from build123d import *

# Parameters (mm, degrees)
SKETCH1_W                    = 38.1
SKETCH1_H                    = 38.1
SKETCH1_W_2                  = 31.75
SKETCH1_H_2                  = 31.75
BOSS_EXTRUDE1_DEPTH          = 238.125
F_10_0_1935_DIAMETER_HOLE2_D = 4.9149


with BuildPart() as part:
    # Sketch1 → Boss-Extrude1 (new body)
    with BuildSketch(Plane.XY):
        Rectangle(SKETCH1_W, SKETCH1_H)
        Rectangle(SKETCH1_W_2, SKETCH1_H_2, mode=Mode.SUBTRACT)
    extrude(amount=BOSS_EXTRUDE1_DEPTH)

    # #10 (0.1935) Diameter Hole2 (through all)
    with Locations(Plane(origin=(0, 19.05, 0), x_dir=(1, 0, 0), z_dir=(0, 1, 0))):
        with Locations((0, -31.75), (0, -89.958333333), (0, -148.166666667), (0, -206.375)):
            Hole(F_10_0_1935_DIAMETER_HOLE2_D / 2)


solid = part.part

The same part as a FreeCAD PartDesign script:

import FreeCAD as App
import Part
import Sketcher
from FreeCAD import Vector
Q = App.Units.Quantity


def add_polygon(sketch, points):
    """Adds a closed chain of lines whose ends are joined by coincident constraints."""
    first, n = sketch.GeometryCount, len(points)
    for a, b in zip(points, points[1:] + points[:1]):
        sketch.addGeometry(Part.LineSegment(App.Vector(*a, 0), App.Vector(*b, 0)), False)
    for i in range(n):
        sketch.addConstraint(Sketcher.Constraint("Coincident", first + i, 2, first + (i + 1) % n, 1))

doc = App.newDocument("Part")
params = doc.addObject("Spreadsheet::Sheet", "Params")
for row, (alias, value) in enumerate([
    ("sketch1_width", "1.5 in"),
    ("sketch1_width2", "1.25 in"),
    ("pad1_length", "9.375 in"),
    ("hole_diameter", "0.1935 in"),
], start=1):
    params.set(f"A{row}", alias)
    params.set(f"B{row}", "=" + value)
    params.setAlias(f"B{row}", alias)

body = doc.addObject("PartDesign::Body", "Body")

sketch1 = body.newObject("Sketcher::SketchObject", "Sketch")
sketch1.AttachmentSupport = (doc.getObject("XY_Plane"), [""])
sketch1.MapMode = "FlatFace"
add_polygon(sketch1, [(-19, 19), (-19, -19), (19, -19), (19, 19)])
add_polygon(sketch1, [(16, -16), (-16, -16), (-16, 16), (16, 16)])
sketch1.addConstraint([
    Sketcher.Constraint("Vertical", 0),
    Sketcher.Constraint("Horizontal", 1),
    Sketcher.Constraint("Vertical", 2),
    Sketcher.Constraint("Horizontal", 3),
    Sketcher.Constraint("Horizontal", 4),
    Sketcher.Constraint("Vertical", 5),
    Sketcher.Constraint("Horizontal", 6),
    Sketcher.Constraint("Vertical", 7),
    Sketcher.Constraint("Symmetric", 0, 2, 2, 2, -1, 1),
    Sketcher.Constraint("Symmetric", 4, 2, 6, 2, -1, 1),
    Sketcher.Constraint("Equal", 3, 0),
    Sketcher.Constraint("Equal", 6, 5),
    Sketcher.Constraint("DistanceX", 1, 1, 1, 2, Q("1.5 in")),
    Sketcher.Constraint("DistanceX", 4, 2, 4, 1, Q("1.25 in")),
])
sketch1.setExpression("Constraints[20]", "Params.sketch1_width")
sketch1.setExpression("Constraints[21]", "Params.sketch1_width2")
pad1 = body.newObject("PartDesign::Pad", "Pad")
pad1.Profile = sketch1
pad1.setExpression("Length", "Params.pad1_length")

sketch2 = body.newObject("Sketcher::SketchObject", "Sketch001")
sketch2.AttachmentSupport = (doc.getObject("XZ_Plane"), [""])
sketch2.MapMode = "FlatFace"
sketch2.AttachmentOffset = App.Placement(Vector(0, 0, -0.75 * 25.4), App.Rotation())
sketch2.addGeometry([
    Part.Circle(Vector(0, 31.8, 0), Vector(0, 0, 1), 2.5),
    Part.Circle(Vector(0, 90, 0), Vector(0, 0, 1), 2.5),
    Part.Circle(Vector(0, 148.2, 0), Vector(0, 0, 1), 2.5),
    Part.Circle(Vector(0, 206.4, 0), Vector(0, 0, 1), 2.5),
], False)
sketch2.addConstraint([
    Sketcher.Constraint("Equal", 0, 1),
    Sketcher.Constraint("Equal", 1, 2),
    Sketcher.Constraint("Equal", 2, 3),
    Sketcher.Constraint("PointOnObject", 0, 3, -2),
    Sketcher.Constraint("PointOnObject", 1, 3, -2),
    Sketcher.Constraint("PointOnObject", 2, 3, -2),
    Sketcher.Constraint("PointOnObject", 3, 3, -2),
    Sketcher.Constraint("Diameter", 0, Q("0.1935 in")),
    Sketcher.Constraint("DistanceY", -1, 1, 0, 3, Q("1.25 in")),
    Sketcher.Constraint("DistanceY", -1, 1, 3, 3, Q("8.125 in")),
    Sketcher.Constraint("DistanceY", -1, 1, 1, 3, Q("89.958333 mm")),
    Sketcher.Constraint("DistanceY", -1, 1, 2, 3, Q("148.166667 mm")),
])
doc.recompute()
hole = body.newObject("PartDesign::Hole", "Hole")
hole.Profile = sketch2
hole.ThreadType = "None"
hole.setExpression("Diameter", "Params.hole_diameter")
hole.DepthType = "ThroughAll"
hole.Reversed = True

doc.recompute()
